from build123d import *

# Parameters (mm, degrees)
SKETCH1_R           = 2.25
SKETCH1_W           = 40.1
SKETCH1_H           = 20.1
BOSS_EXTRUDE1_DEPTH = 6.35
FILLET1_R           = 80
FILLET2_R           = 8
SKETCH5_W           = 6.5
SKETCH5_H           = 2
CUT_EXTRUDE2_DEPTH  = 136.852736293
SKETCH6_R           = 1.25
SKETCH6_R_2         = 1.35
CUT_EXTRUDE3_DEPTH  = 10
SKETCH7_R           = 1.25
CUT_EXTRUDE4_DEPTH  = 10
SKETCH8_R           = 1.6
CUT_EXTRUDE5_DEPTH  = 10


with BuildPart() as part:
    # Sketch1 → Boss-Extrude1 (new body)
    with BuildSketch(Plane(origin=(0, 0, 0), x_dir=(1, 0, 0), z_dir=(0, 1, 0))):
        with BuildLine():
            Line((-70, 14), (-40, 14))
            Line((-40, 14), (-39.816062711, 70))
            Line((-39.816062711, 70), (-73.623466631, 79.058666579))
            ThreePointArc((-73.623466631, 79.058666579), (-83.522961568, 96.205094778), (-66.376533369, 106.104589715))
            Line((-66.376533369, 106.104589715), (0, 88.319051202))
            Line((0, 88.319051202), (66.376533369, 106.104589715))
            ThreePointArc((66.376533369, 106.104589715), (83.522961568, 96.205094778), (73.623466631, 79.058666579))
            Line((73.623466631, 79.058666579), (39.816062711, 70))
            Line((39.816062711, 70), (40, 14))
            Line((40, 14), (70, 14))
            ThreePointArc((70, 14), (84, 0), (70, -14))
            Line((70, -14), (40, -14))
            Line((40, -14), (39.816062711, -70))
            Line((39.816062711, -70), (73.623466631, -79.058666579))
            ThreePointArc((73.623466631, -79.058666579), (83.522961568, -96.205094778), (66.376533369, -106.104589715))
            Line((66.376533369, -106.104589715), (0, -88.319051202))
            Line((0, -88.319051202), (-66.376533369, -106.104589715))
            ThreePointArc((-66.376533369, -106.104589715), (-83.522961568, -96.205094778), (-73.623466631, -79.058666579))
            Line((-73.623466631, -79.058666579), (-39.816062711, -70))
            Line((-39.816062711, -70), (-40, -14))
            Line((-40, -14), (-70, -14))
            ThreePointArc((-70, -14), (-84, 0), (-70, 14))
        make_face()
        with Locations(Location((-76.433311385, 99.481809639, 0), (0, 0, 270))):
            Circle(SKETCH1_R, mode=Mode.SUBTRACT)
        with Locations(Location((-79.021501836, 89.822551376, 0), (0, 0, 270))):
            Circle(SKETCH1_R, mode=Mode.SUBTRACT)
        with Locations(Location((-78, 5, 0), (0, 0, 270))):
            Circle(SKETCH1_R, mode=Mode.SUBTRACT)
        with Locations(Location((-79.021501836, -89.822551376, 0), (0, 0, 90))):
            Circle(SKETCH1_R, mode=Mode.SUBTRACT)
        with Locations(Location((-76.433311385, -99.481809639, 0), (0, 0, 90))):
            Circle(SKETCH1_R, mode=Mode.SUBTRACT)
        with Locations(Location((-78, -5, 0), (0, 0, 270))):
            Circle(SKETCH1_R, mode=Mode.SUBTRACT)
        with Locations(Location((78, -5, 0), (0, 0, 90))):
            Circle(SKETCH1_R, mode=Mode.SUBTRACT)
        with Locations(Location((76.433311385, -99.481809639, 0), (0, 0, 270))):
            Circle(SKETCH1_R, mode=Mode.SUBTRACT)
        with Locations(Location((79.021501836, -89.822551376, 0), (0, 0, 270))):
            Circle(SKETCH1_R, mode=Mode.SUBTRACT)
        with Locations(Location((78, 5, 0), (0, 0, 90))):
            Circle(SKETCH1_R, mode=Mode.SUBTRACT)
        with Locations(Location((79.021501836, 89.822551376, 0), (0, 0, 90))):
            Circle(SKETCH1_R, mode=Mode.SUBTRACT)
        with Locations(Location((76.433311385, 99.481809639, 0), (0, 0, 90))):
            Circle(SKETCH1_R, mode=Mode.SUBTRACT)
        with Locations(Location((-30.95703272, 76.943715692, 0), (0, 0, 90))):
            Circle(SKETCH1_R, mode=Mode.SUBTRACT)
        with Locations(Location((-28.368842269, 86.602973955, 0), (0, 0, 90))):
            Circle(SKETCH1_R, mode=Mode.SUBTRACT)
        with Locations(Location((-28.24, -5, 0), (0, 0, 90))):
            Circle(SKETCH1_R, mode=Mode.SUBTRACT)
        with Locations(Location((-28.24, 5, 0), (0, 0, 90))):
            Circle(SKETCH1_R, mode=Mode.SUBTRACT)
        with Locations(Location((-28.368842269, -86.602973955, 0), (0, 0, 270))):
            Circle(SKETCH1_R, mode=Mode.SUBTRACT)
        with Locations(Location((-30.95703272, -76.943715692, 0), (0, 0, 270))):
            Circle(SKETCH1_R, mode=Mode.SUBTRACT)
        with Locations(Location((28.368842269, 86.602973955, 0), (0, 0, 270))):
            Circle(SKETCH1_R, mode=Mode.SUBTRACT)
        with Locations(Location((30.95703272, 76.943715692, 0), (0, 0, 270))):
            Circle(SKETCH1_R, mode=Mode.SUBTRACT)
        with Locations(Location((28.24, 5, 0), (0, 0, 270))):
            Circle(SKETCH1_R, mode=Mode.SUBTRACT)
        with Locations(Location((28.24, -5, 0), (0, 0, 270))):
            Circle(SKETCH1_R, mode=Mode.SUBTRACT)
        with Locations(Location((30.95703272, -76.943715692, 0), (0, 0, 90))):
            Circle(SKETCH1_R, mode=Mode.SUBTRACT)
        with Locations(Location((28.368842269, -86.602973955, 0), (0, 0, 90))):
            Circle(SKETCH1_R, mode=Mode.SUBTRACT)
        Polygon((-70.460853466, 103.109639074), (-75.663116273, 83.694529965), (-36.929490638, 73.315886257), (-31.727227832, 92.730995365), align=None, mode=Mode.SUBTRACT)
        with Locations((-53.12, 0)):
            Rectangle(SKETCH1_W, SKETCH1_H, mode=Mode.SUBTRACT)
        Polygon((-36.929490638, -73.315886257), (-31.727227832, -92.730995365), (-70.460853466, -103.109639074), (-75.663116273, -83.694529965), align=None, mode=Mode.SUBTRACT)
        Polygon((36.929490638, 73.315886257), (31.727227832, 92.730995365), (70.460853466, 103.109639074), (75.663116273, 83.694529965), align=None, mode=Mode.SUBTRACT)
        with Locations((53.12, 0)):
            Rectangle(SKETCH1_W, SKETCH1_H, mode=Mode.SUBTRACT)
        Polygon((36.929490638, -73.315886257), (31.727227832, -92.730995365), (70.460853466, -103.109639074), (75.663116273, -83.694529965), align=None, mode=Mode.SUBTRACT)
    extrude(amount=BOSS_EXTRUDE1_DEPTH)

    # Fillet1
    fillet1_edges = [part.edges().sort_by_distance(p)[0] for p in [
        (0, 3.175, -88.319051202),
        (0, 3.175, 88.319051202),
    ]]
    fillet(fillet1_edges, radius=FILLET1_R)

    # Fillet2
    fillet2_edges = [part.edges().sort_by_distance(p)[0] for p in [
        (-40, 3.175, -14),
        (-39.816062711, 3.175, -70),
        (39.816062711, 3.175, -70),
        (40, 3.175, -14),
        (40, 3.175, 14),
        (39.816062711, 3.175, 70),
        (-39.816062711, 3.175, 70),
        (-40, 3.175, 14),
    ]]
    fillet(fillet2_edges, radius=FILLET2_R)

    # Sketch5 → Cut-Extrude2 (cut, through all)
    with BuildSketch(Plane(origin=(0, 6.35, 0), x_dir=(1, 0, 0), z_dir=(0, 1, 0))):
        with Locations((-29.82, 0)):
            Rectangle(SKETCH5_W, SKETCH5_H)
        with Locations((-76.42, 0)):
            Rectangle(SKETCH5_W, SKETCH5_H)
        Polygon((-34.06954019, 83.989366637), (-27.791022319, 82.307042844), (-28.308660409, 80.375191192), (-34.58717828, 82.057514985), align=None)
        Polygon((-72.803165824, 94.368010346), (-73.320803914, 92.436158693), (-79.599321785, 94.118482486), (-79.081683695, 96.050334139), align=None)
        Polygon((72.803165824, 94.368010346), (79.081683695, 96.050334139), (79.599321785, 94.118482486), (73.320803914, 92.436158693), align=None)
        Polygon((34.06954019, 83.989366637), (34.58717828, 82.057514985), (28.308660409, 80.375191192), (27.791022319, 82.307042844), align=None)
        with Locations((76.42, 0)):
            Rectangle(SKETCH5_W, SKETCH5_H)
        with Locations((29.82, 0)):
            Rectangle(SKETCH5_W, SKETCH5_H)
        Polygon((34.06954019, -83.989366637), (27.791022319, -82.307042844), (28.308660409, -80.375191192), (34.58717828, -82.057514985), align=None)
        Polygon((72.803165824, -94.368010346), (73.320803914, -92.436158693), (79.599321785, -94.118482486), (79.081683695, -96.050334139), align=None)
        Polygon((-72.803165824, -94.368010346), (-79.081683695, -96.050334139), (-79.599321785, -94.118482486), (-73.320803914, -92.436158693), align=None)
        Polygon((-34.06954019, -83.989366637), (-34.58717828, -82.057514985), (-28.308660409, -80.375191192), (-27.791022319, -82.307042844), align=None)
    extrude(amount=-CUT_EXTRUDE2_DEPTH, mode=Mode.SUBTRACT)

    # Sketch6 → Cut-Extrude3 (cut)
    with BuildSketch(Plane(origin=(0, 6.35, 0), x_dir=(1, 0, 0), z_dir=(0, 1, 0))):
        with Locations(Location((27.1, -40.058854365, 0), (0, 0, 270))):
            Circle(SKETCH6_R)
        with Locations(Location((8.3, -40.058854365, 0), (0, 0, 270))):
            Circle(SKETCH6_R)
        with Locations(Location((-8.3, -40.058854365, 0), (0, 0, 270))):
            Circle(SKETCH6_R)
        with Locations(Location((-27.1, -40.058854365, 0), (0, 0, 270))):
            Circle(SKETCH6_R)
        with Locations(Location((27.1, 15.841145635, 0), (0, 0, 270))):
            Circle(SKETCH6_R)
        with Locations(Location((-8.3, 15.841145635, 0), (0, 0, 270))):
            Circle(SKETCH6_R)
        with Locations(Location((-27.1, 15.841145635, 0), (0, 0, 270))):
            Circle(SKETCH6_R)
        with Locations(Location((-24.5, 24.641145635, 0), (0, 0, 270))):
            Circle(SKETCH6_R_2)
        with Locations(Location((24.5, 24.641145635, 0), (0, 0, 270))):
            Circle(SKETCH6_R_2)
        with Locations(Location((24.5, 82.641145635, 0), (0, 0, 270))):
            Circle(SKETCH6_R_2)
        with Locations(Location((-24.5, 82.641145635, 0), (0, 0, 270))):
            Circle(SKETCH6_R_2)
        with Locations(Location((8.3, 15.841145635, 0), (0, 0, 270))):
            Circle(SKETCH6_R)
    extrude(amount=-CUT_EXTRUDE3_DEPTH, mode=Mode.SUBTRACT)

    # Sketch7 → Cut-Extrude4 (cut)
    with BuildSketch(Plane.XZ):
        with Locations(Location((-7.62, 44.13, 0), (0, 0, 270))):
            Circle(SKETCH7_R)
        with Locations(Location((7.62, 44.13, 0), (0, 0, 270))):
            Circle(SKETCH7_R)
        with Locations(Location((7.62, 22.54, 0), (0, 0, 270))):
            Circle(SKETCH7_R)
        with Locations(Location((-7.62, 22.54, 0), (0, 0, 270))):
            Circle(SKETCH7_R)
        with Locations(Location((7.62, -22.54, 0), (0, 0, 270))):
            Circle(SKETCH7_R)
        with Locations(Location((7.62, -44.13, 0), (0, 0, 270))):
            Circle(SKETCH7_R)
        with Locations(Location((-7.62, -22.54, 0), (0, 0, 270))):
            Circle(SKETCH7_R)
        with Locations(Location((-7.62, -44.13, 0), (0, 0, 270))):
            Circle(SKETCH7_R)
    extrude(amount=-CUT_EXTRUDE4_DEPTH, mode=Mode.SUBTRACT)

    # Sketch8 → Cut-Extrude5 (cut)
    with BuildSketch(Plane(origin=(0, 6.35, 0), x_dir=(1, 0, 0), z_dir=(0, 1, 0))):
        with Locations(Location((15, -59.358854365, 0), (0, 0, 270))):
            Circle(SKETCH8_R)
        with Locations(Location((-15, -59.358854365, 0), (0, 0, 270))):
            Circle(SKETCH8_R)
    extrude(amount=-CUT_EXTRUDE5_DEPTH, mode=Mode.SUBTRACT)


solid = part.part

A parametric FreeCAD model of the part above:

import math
import FreeCAD as App
import Part
import Sketcher
Q = App.Units.Quantity


def edges_at(feature, points):
    """Names of the edges that pass closest to the given points."""
    edges = feature.Shape.Edges
    near = lambda p: min(range(len(edges)), key=lambda i: edges[i].distToShape(Part.Vertex(*p))[0])
    return sorted({f"Edge{near(p) + 1}" for p in points})

doc = App.newDocument("Part")
body = doc.addObject("PartDesign::Body", "Body")

# Sketch on XZ plane
sketch1 = body.newObject("Sketcher::SketchObject", "Sketch")
sketch1.AttachmentSupport = (doc.getObject("XZ_Plane"), [""])
sketch1.MapMode = "FlatFace"
sketch1.addGeometry([
    Part.LineSegment(App.Vector(-40, -14, 0), App.Vector(-70, -14, 0)),  # 0
    Part.ArcOfCircle(Part.Circle(App.Vector(-70, 0, 0), App.Vector(0, 0, 1), 14), math.radians(90), math.radians(270)),  # 1
    Part.LineSegment(App.Vector(-70, 14, 0), App.Vector(-40, 14, 0)),  # 2
    Part.LineSegment(App.Vector(-40, 14, 0), App.Vector(-39.8, 70, 0)),  # 3
    Part.LineSegment(App.Vector(-39.8, 70, 0), App.Vector(-73.6, 79.1, 0)),  # 4
    Part.ArcOfCircle(Part.Circle(App.Vector(-70, 92.6, 0), App.Vector(0, 0, 1), 14), math.radians(75), math.radians(255)),  # 5
    Part.LineSegment(App.Vector(-66.4, 106.1, 0), App.Vector(0, 88.3, 0)),  # 6
    Part.LineSegment(App.Vector(0, 88.3, 0), App.Vector(66.4, 106.1, 0)),  # 7
    Part.ArcOfCircle(Part.Circle(App.Vector(70, 92.6, 0), App.Vector(0, 0, 1), 14), math.radians(-75), math.radians(105)),  # 8
    Part.LineSegment(App.Vector(73.6, 79.1, 0), App.Vector(39.8, 70, 0)),  # 9
    Part.LineSegment(App.Vector(39.8, 70, 0), App.Vector(40, 14, 0)),  # 10
    Part.LineSegment(App.Vector(40, 14, 0), App.Vector(70, 14, 0)),  # 11
    Part.ArcOfCircle(Part.Circle(App.Vector(70, 0, 0), App.Vector(0, 0, 1), 14), math.radians(-90), math.radians(90)),  # 12
    Part.LineSegment(App.Vector(70, -14, 0), App.Vector(40, -14, 0)),  # 13
    Part.LineSegment(App.Vector(40, -14, 0), App.Vector(39.8, -70, 0)),  # 14
    Part.LineSegment(App.Vector(39.8, -70, 0), App.Vector(73.6, -79.1, 0)),  # 15
    Part.ArcOfCircle(Part.Circle(App.Vector(70, -92.6, 0), App.Vector(0, 0, 1), 14), math.radians(-105), math.radians(75)),  # 16
    Part.LineSegment(App.Vector(66.4, -106.1, 0), App.Vector(0, -88.3, 0)),  # 17
    Part.LineSegment(App.Vector(0, -88.3, 0), App.Vector(-66.4, -106.1, 0)),  # 18
    Part.ArcOfCircle(Part.Circle(App.Vector(-70, -92.6, 0), App.Vector(0, 0, 1), 14), math.radians(105), math.radians(285)),  # 19
    Part.LineSegment(App.Vector(-73.6, -79.1, 0), App.Vector(-39.8, -70, 0)),  # 20
    Part.LineSegment(App.Vector(-39.8, -70, 0), App.Vector(-40, -14, 0)),  # 21
    Part.Circle(App.Vector(76.4, 99.5, 0), App.Vector(0, 0, 1), 2.2),  # 22
    Part.Circle(App.Vector(79, 89.8, 0), App.Vector(0, 0, 1), 2.2),  # 23
    Part.LineSegment(App.Vector(36.9, 73.3, 0), App.Vector(75.7, 83.7, 0)),  # 24
    Part.LineSegment(App.Vector(75.7, 83.7, 0), App.Vector(70.5, 103.1, 0)),  # 25
    Part.LineSegment(App.Vector(70.5, 103.1, 0), App.Vector(31.7, 92.7, 0)),  # 26
    Part.LineSegment(App.Vector(31.7, 92.7, 0), App.Vector(36.9, 73.3, 0)),  # 27
    Part.Circle(App.Vector(28.4, 86.6, 0), App.Vector(0, 0, 1), 2.2),  # 28
    Part.Circle(App.Vector(31, 76.9, 0), App.Vector(0, 0, 1), 2.2),  # 29
    Part.Circle(App.Vector(78, 5, 0), App.Vector(0, 0, 1), 2.2),  # 30
    Part.Circle(App.Vector(28.2, 5, 0), App.Vector(0, 0, 1), 2.2),  # 31
    Part.Circle(App.Vector(-28.4, 86.6, 0), App.Vector(0, 0, 1), 2.2),  # 32
    Part.Circle(App.Vector(-31, 76.9, 0), App.Vector(0, 0, 1), 2.2),  # 33
    Part.LineSegment(App.Vector(-36.9, 73.3, 0), App.Vector(-31.7, 92.7, 0)),  # 34
    Part.LineSegment(App.Vector(-31.7, 92.7, 0), App.Vector(-70.5, 103.1, 0)),  # 35
    Part.LineSegment(App.Vector(-70.5, 103.1, 0), App.Vector(-75.7, 83.7, 0)),  # 36
    Part.LineSegment(App.Vector(-75.7, 83.7, 0), App.Vector(-36.9, 73.3, 0)),  # 37
    Part.Circle(App.Vector(-76.4, 99.5, 0), App.Vector(0, 0, 1), 2.2),  # 38
    Part.Circle(App.Vector(-79, 89.8, 0), App.Vector(0, 0, 1), 2.2),  # 39
    Part.Circle(App.Vector(-28.2, 5, 0), App.Vector(0, 0, 1), 2.2),  # 40
    Part.Circle(App.Vector(-78, 5, 0), App.Vector(0, 0, 1), 2.2),  # 41
    Part.Circle(App.Vector(78, -5, 0), App.Vector(0, 0, 1), 2.2),  # 42
    Part.LineSegment(App.Vector(33.1, 10.1, 0), App.Vector(33.1, -10.1, 0)),  # 43
    Part.LineSegment(App.Vector(33.1, -10.1, 0), App.Vector(73.2, -10.1, 0)),  # 44
    Part.LineSegment(App.Vector(73.2, -10.1, 0), App.Vector(73.2, 10.1, 0)),  # 45
    Part.LineSegment(App.Vector(73.2, 10.1, 0), App.Vector(33.1, 10.1, 0)),  # 46
    Part.Circle(App.Vector(28.2, -5, 0), App.Vector(0, 0, 1), 2.2),  # 47
    Part.Circle(App.Vector(79, -89.8, 0), App.Vector(0, 0, 1), 2.2),  # 48
    Part.Circle(App.Vector(76.4, -99.5, 0), App.Vector(0, 0, 1), 2.2),  # 49
    Part.LineSegment(App.Vector(36.9, -73.3, 0), App.Vector(31.7, -92.7, 0)),  # 50
    Part.LineSegment(App.Vector(31.7, -92.7, 0), App.Vector(70.5, -103.1, 0)),  # 51
    Part.LineSegment(App.Vector(70.5, -103.1, 0), App.Vector(75.7, -83.7, 0)),  # 52
    Part.LineSegment(App.Vector(75.7, -83.7, 0), App.Vector(36.9, -73.3, 0)),  # 53
    Part.Circle(App.Vector(31, -76.9, 0), App.Vector(0, 0, 1), 2.2),  # 54
    Part.Circle(App.Vector(28.4, -86.6, 0), App.Vector(0, 0, 1), 2.2),  # 55
    Part.Circle(App.Vector(-28.2, -5, 0), App.Vector(0, 0, 1), 2.2),  # 56
    Part.LineSegment(App.Vector(-73.2, 10.1, 0), App.Vector(-73.2, -10.1, 0)),  # 57
    Part.LineSegment(App.Vector(-73.2, -10.1, 0), App.Vector(-33.1, -10.1, 0)),  # 58
    Part.LineSegment(App.Vector(-33.1, -10.1, 0), App.Vector(-33.1, 10.1, 0)),  # 59
    Part.LineSegment(App.Vector(-33.1, 10.1, 0), App.Vector(-73.2, 10.1, 0)),  # 60
    Part.Circle(App.Vector(-78, -5, 0), App.Vector(0, 0, 1), 2.2),  # 61
    Part.Circle(App.Vector(-31, -76.9, 0), App.Vector(0, 0, 1), 2.2),  # 62
    Part.Circle(App.Vector(-28.4, -86.6, 0), App.Vector(0, 0, 1), 2.2),  # 63
    Part.LineSegment(App.Vector(-70.5, -103.1, 0), App.Vector(-31.7, -92.7, 0)),  # 64
    Part.LineSegment(App.Vector(-31.7, -92.7, 0), App.Vector(-36.9, -73.3, 0)),  # 65
    Part.LineSegment(App.Vector(-36.9, -73.3, 0), App.Vector(-75.7, -83.7, 0)),  # 66
    Part.LineSegment(App.Vector(-75.7, -83.7, 0), App.Vector(-70.5, -103.1, 0)),  # 67
    Part.Circle(App.Vector(-79, -89.8, 0), App.Vector(0, 0, 1), 2.2),  # 68
    Part.Circle(App.Vector(-76.4, -99.5, 0), App.Vector(0, 0, 1), 2.2),  # 69
], False)
sketch1.addConstraint([
    Sketcher.Constraint("Tangent", 0, 2, 1, 2),
    Sketcher.Constraint("Tangent", 1, 1, 2, 1),
    Sketcher.Constraint("Coincident", 2, 2, 3, 1),
    Sketcher.Constraint("Coincident", 3, 2, 4, 1),
    Sketcher.Constraint("Tangent", 4, 2, 5, 2),
    Sketcher.Constraint("Tangent", 5, 1, 6, 1),
    Sketcher.Constraint("Coincident", 6, 2, 7, 1),
    Sketcher.Constraint("Tangent", 7, 2, 8, 2),
    Sketcher.Constraint("Tangent", 8, 1, 9, 1),
    Sketcher.Constraint("Coincident", 9, 2, 10, 1),
    Sketcher.Constraint("Coincident", 10, 2, 11, 1),
    Sketcher.Constraint("Tangent", 11, 2, 12, 2),
    Sketcher.Constraint("Tangent", 12, 1, 13, 1),
    Sketcher.Constraint("Coincident", 13, 2, 14, 1),
    Sketcher.Constraint("Coincident", 14, 2, 15, 1),
    Sketcher.Constraint("Tangent", 15, 2, 16, 2),
    Sketcher.Constraint("Tangent", 16, 1, 17, 1),
    Sketcher.Constraint("Coincident", 17, 2, 18, 1),
    Sketcher.Constraint("Tangent", 18, 2, 19, 2),
    Sketcher.Constraint("Tangent", 19, 1, 20, 1),
    Sketcher.Constraint("Coincident", 20, 2, 21, 1),
    Sketcher.Constraint("Coincident", 21, 2, 0, 1),
    Sketcher.Constraint("Coincident", 24, 2, 25, 1),
    Sketcher.Constraint("Coincident", 25, 2, 26, 1),
    Sketcher.Constraint("Coincident", 26, 2, 27, 1),
    Sketcher.Constraint("Coincident", 27, 2, 24, 1),
    Sketcher.Constraint("Coincident", 34, 2, 35, 1),
    Sketcher.Constraint("Coincident", 35, 2, 36, 1),
    Sketcher.Constraint("Coincident", 36, 2, 37, 1),
    Sketcher.Constraint("Coincident", 37, 2, 34, 1),
    Sketcher.Constraint("Coincident", 43, 2, 44, 1),
    Sketcher.Constraint("Coincident", 44, 2, 45, 1),
    Sketcher.Constraint("Coincident", 45, 2, 46, 1),
    Sketcher.Constraint("Coincident", 46, 2, 43, 1),
    Sketcher.Constraint("Coincident", 50, 2, 51, 1),
    Sketcher.Constraint("Coincident", 51, 2, 52, 1),
    Sketcher.Constraint("Coincident", 52, 2, 53, 1),
    Sketcher.Constraint("Coincident", 53, 2, 50, 1),
    Sketcher.Constraint("Coincident", 57, 2, 58, 1),
    Sketcher.Constraint("Coincident", 58, 2, 59, 1),
    Sketcher.Constraint("Coincident", 59, 2, 60, 1),
    Sketcher.Constraint("Coincident", 60, 2, 57, 1),
    Sketcher.Constraint("Coincident", 64, 2, 65, 1),
    Sketcher.Constraint("Coincident", 65, 2, 66, 1),
    Sketcher.Constraint("Coincident", 66, 2, 67, 1),
    Sketcher.Constraint("Coincident", 67, 2, 64, 1),
    Sketcher.Constraint("Horizontal", 0),
    Sketcher.Constraint("Horizontal", 2),
    Sketcher.Constraint("Horizontal", 11),
    Sketcher.Constraint("Horizontal", 13),
    Sketcher.Constraint("Vertical", 43),
    Sketcher.Constraint("Horizontal", 44),
    Sketcher.Constraint("Vertical", 45),
    Sketcher.Constraint("Horizontal", 46),
    Sketcher.Constraint("Vertical", 57),
    Sketcher.Constraint("Horizontal", 58),
    Sketcher.Constraint("Vertical", 59),
    Sketcher.Constraint("Horizontal", 60),
    Sketcher.Constraint("Equal", 1, 5),
    Sketcher.Constraint("Equal", 5, 8),
    Sketcher.Constraint("Equal", 8, 12),
    Sketcher.Constraint("Equal", 12, 16),
    Sketcher.Constraint("Equal", 16, 19),
    Sketcher.Constraint("Equal", 22, 23),
    Sketcher.Constraint("Equal", 23, 28),
    Sketcher.Constraint("Equal", 28, 29),
    Sketcher.Constraint("Equal", 29, 30),
    Sketcher.Constraint("Equal", 30, 31),
    Sketcher.Constraint("Equal", 31, 32),
    Sketcher.Constraint("Equal", 32, 33),
    Sketcher.Constraint("Equal", 33, 38),
    Sketcher.Constraint("Equal", 38, 39),
    Sketcher.Constraint("Equal", 39, 40),
    Sketcher.Constraint("Equal", 40, 41),
    Sketcher.Constraint("Equal", 41, 42),
    Sketcher.Constraint("Equal", 42, 47),
    Sketcher.Constraint("Equal", 47, 48),
    Sketcher.Constraint("Equal", 48, 49),
    Sketcher.Constraint("Equal", 49, 54),
    Sketcher.Constraint("Equal", 54, 55),
    Sketcher.Constraint("Equal", 55, 56),
    Sketcher.Constraint("Equal", 56, 61),
    Sketcher.Constraint("Equal", 61, 62),
    Sketcher.Constraint("Equal", 62, 63),
    Sketcher.Constraint("Equal", 63, 68),
    Sketcher.Constraint("Equal", 68, 69),
    Sketcher.Constraint("Symmetric", 1, 3, 12, 3, -1, 1),
    Sketcher.Constraint("Symmetric", 5, 3, 16, 3, -1, 1),
    Sketcher.Constraint("Symmetric", 8, 3, 19, 3, -1, 1),
    Sketcher.Constraint("Symmetric", 41, 3, 42, 3, -1, 1),
    Sketcher.Constraint("Symmetric", 40, 3, 47, 3, -1, 1),
    Sketcher.Constraint("Symmetric", 39, 3, 48, 3, -1, 1),
    Sketcher.Constraint("Symmetric", 38, 3, 49, 3, -1, 1),
    Sketcher.Constraint("Symmetric", 33, 3, 54, 3, -1, 1),
    Sketcher.Constraint("Symmetric", 32, 3, 55, 3, -1, 1),
    Sketcher.Constraint("Symmetric", 31, 3, 56, 3, -1, 1),
    Sketcher.Constraint("Symmetric", 30, 3, 61, 3, -1, 1),
    Sketcher.Constraint("Symmetric", 29, 3, 62, 3, -1, 1),
    Sketcher.Constraint("Symmetric", 28, 3, 63, 3, -1, 1),
    Sketcher.Constraint("Symmetric", 23, 3, 68, 3, -1, 1),
    Sketcher.Constraint("Symmetric", 22, 3, 69, 3, -1, 1),
    Sketcher.Constraint("Symmetric", 3, 2, 14, 2, -1, 1),
    Sketcher.Constraint("Symmetric", 6, 2, 17, 2, -1, 1),
    Sketcher.Constraint("Symmetric", 9, 2, 20, 2, -1, 1),
    Sketcher.Constraint("Symmetric", 34, 2, 50, 2, -1, 1),
    Sketcher.Constraint("Symmetric", 35, 2, 51, 2, -1, 1),
    Sketcher.Constraint("Symmetric", 36, 2, 52, 2, -1, 1),
    Sketcher.Constraint("Symmetric", 37, 2, 53, 2, -1, 1),
    Sketcher.Constraint("Symmetric", 45, 2, 57, 2, -1, 1),
    Sketcher.Constraint("Symmetric", 43, 2, 59, 2, -1, 1),
    Sketcher.Constraint("Symmetric", 26, 2, 64, 2, -1, 1),
    Sketcher.Constraint("Symmetric", 27, 2, 65, 2, -1, 1),
    Sketcher.Constraint("Symmetric", 24, 2, 66, 2, -1, 1),
    Sketcher.Constraint("Symmetric", 25, 2, 67, 2, -1, 1),
    Sketcher.Constraint("Symmetric", 5, 3, 8, 3, -2),
    Sketcher.Constraint("Symmetric", 28, 3, 32, 3, -2),
    Sketcher.Constraint("Symmetric", 29, 3, 33, 3, -2),
    Sketcher.Constraint("Symmetric", 22, 3, 38, 3, -2),
    Sketcher.Constraint("Symmetric", 23, 3, 39, 3, -2),
    Sketcher.Constraint("Symmetric", 31, 3, 40, 3, -2),
    Sketcher.Constraint("Symmetric", 30, 3, 41, 3, -2),
    Sketcher.Constraint("Symmetric", 3, 2, 9, 2, -2),
    Sketcher.Constraint("Symmetric", 2, 2, 10, 2, -2),
    Sketcher.Constraint("Symmetric", 26, 2, 34, 2, -2),
    Sketcher.Constraint("Symmetric", 25, 2, 35, 2, -2),
    Sketcher.Constraint("Symmetric", 24, 2, 36, 2, -2),
    Sketcher.Constraint("Symmetric", 27, 2, 37, 2, -2),
    Sketcher.Constraint("PointOnObject", 6, 2, -2),
    Sketcher.Constraint("Parallel", 4, 6),
    Sketcher.Constraint("Parallel", 3, 14),
    Sketcher.Constraint("Parallel", 10, 21),
    Sketcher.Constraint("Parallel", 20, 24),
    Sketcher.Constraint("Perpendicular", 24, 25),
    Sketcher.Constraint("Perpendicular", 25, 26),
    Sketcher.Constraint("Perpendicular", 26, 27),
    Sketcher.Constraint("Horizontal", 30, 3, 31, 3),
    Sketcher.Constraint("Horizontal", 44, 2, 57, 2),
    Sketcher.Constraint("Vertical", 1, 3, 5, 3),
    Sketcher.Constraint("Radius", 1, 14.0),
    Sketcher.Constraint("Diameter", 22, 4.5),
    Sketcher.Constraint("DistanceX", 0, 2, 0, 1, 30.0),
    Sketcher.Constraint("Angle", 4, Q("165 deg")),
    Sketcher.Constraint("Distance", 4, 35.0),
    Sketcher.Constraint("DistanceX", 44, 1, 44, 2, 40.1),
    Sketcher.Constraint("DistanceY", 43, 2, 43, 1, 20.1),
    Sketcher.Constraint("DistanceX", 1, 3, -1, 1, 70.0),
    Sketcher.Constraint("DistanceX", -1, 1, 30, 3, 78.0),
    Sketcher.Constraint("DistanceY", -1, 1, 30, 3, 5.0),
    Sketcher.Constraint("DistanceY", -1, 1, 3, 2, 70.0),
    Sketcher.Constraint("Distance", 24, 40.1),
    Sketcher.Constraint("Distance", 25, 20.1),
    Sketcher.Constraint("DistanceX", -1, 1, 31, 3, 28.24),
    Sketcher.Constraint("DistanceX", -1, 1, 43, 2, 33.07),
    Sketcher.Constraint("DistanceX", -1, 1, 23, 3, 79.021502),
    Sketcher.Constraint("DistanceX", -1, 1, 22, 3, 76.433311),
    Sketcher.Constraint("DistanceY", -1, 1, 22, 3, 99.48181),
    Sketcher.Constraint("DistanceY", -1, 1, 23, 3, 89.822551),
    Sketcher.Constraint("DistanceY", -1, 1, 24, 2, 83.69453),
    Sketcher.Constraint("DistanceX", -1, 1, 27, 2, 36.929491),
    Sketcher.Constraint("DistanceX", -1, 1, 28, 3, 28.368842),
    Sketcher.Constraint("DistanceY", -1, 1, 28, 3, 86.602974),
    Sketcher.Constraint("DistanceX", -1, 1, 29, 3, 30.957033),
    Sketcher.Constraint("DistanceY", -1, 1, 29, 3, 76.943716),
])
pad1 = body.newObject("PartDesign::Pad", "Pad")
pad1.Profile = sketch1
pad1.Length = 6.35
pad1.Reversed = True
doc.recompute()

fillet = body.newObject("PartDesign::Fillet", "Fillet")
fillet.Base = (pad1, edges_at(pad1, [(0, 3.175, -88.319), (0, 3.175, 88.319)]))
fillet.Radius = 80
doc.recompute()

fillet2 = body.newObject("PartDesign::Fillet", "Fillet001")
fillet2.Base = (fillet, edges_at(fillet, [
    (-40, 3.175, -14),
    (-39.816, 3.175, -70),
    (39.816, 3.175, -70),
    (40, 3.175, -14),
    (40, 3.175, 14),
    (39.816, 3.175, 70),
    (-39.816, 3.175, 70),
    (-40, 3.175, 14),
]))
fillet2.Radius = 8

# Sketch on XZ plane
sketch2 = body.newObject("Sketcher::SketchObject", "Sketch001")
sketch2.AttachmentSupport = (doc.getObject("XZ_Plane"), [""])
sketch2.MapMode = "FlatFace"
sketch2.AttachmentOffset = App.Placement(App.Vector(0, 0, -6.35), App.Rotation())
sketch2.addGeometry([
    Part.LineSegment(App.Vector(-33.1, -1, 0), App.Vector(-33.1, 1, 0)),  # 0
    Part.LineSegment(App.Vector(-33.1, 1, 0), App.Vector(-26.6, 1, 0)),  # 1
    Part.LineSegment(App.Vector(-26.6, 1, 0), App.Vector(-26.6, -1, 0)),  # 2
    Part.LineSegment(App.Vector(-26.6, -1, 0), App.Vector(-33.1, -1, 0)),  # 3
    Part.LineSegment(App.Vector(-79.7, -1, 0), App.Vector(-79.7, 1, 0)),  # 4
    Part.LineSegment(App.Vector(-79.7, 1, 0), App.Vector(-73.2, 1, 0)),  # 5
    Part.LineSegment(App.Vector(-73.2, 1, 0), App.Vector(-73.2, -1, 0)),  # 6
    Part.LineSegment(App.Vector(-73.2, -1, 0), App.Vector(-79.7, -1, 0)),  # 7
    Part.LineSegment(App.Vector(-27.8, -82.3, 0), App.Vector(-34.1, -84, 0)),  # 8
    Part.LineSegment(App.Vector(-34.1, -84, 0), App.Vector(-34.6, -82.1, 0)),  # 9
    Part.LineSegment(App.Vector(-34.6, -82.1, 0), App.Vector(-28.3, -80.4, 0)),  # 10
    Part.LineSegment(App.Vector(-28.3, -80.4, 0), App.Vector(-27.8, -82.3, 0)),  # 11
    Part.LineSegment(App.Vector(-73.3, -92.4, 0), App.Vector(-72.8, -94.4, 0)),  # 12
    Part.LineSegment(App.Vector(-72.8, -94.4, 0), App.Vector(-79.1, -96.1, 0)),  # 13
    Part.LineSegment(App.Vector(-79.1, -96.1, 0), App.Vector(-79.6, -94.1, 0)),  # 14
    Part.LineSegment(App.Vector(-79.6, -94.1, 0), App.Vector(-73.3, -92.4, 0)),  # 15
    Part.LineSegment(App.Vector(79.1, -96.1, 0), App.Vector(72.8, -94.4, 0)),  # 16
    Part.LineSegment(App.Vector(72.8, -94.4, 0), App.Vector(73.3, -92.4, 0)),  # 17
    Part.LineSegment(App.Vector(73.3, -92.4, 0), App.Vector(79.6, -94.1, 0)),  # 18
    Part.LineSegment(App.Vector(79.6, -94.1, 0), App.Vector(79.1, -96.1, 0)),  # 19
    Part.LineSegment(App.Vector(34.6, -82.1, 0), App.Vector(34.1, -84, 0)),  # 20
    Part.LineSegment(App.Vector(34.1, -84, 0), App.Vector(27.8, -82.3, 0)),  # 21
    Part.LineSegment(App.Vector(27.8, -82.3, 0), App.Vector(28.3, -80.4, 0)),  # 22
    Part.LineSegment(App.Vector(28.3, -80.4, 0), App.Vector(34.6, -82.1, 0)),  # 23
    Part.LineSegment(App.Vector(73.2, -1, 0), App.Vector(73.2, 1, 0)),  # 24
    Part.LineSegment(App.Vector(73.2, 1, 0), App.Vector(79.7, 1, 0)),  # 25
    Part.LineSegment(App.Vector(79.7, 1, 0), App.Vector(79.7, -1, 0)),  # 26
    Part.LineSegment(App.Vector(79.7, -1, 0), App.Vector(73.2, -1, 0)),  # 27
    Part.LineSegment(App.Vector(26.6, -1, 0), App.Vector(26.6, 1, 0)),  # 28
    Part.LineSegment(App.Vector(26.6, 1, 0), App.Vector(33.1, 1, 0)),  # 29
    Part.LineSegment(App.Vector(33.1, 1, 0), App.Vector(33.1, -1, 0)),  # 30
    Part.LineSegment(App.Vector(33.1, -1, 0), App.Vector(26.6, -1, 0)),  # 31
    Part.LineSegment(App.Vector(27.8, 82.3, 0), App.Vector(34.1, 84, 0)),  # 32
    Part.LineSegment(App.Vector(34.1, 84, 0), App.Vector(34.6, 82.1, 0)),  # 33
    Part.LineSegment(App.Vector(34.6, 82.1, 0), App.Vector(28.3, 80.4, 0)),  # 34
    Part.LineSegment(App.Vector(28.3, 80.4, 0), App.Vector(27.8, 82.3, 0)),  # 35
    Part.LineSegment(App.Vector(73.3, 92.4, 0), App.Vector(72.8, 94.4, 0)),  # 36
    Part.LineSegment(App.Vector(72.8, 94.4, 0), App.Vector(79.1, 96.1, 0)),  # 37
    Part.LineSegment(App.Vector(79.1, 96.1, 0), App.Vector(79.6, 94.1, 0)),  # 38
    Part.LineSegment(App.Vector(79.6, 94.1, 0), App.Vector(73.3, 92.4, 0)),  # 39
    Part.LineSegment(App.Vector(-79.1, 96.1, 0), App.Vector(-72.8, 94.4, 0)),  # 40
    Part.LineSegment(App.Vector(-72.8, 94.4, 0), App.Vector(-73.3, 92.4, 0)),  # 41
    Part.LineSegment(App.Vector(-73.3, 92.4, 0), App.Vector(-79.6, 94.1, 0)),  # 42
    Part.LineSegment(App.Vector(-79.6, 94.1, 0), App.Vector(-79.1, 96.1, 0)),  # 43
    Part.LineSegment(App.Vector(-34.6, 82.1, 0), App.Vector(-34.1, 84, 0)),  # 44
    Part.LineSegment(App.Vector(-34.1, 84, 0), App.Vector(-27.8, 82.3, 0)),  # 45
    Part.LineSegment(App.Vector(-27.8, 82.3, 0), App.Vector(-28.3, 80.4, 0)),  # 46
    Part.LineSegment(App.Vector(-28.3, 80.4, 0), App.Vector(-34.6, 82.1, 0)),  # 47
], False)
sketch2.addConstraint([
    Sketcher.Constraint("Coincident", 0, 2, 1, 1),
    Sketcher.Constraint("Coincident", 1, 2, 2, 1),
    Sketcher.Constraint("Coincident", 2, 2, 3, 1),
    Sketcher.Constraint("Coincident", 3, 2, 0, 1),
    Sketcher.Constraint("Coincident", 4, 2, 5, 1),
    Sketcher.Constraint("Coincident", 5, 2, 6, 1),
    Sketcher.Constraint("Coincident", 6, 2, 7, 1),
    Sketcher.Constraint("Coincident", 7, 2, 4, 1),
    Sketcher.Constraint("Coincident", 8, 2, 9, 1),
    Sketcher.Constraint("Coincident", 9, 2, 10, 1),
    Sketcher.Constraint("Coincident", 10, 2, 11, 1),
    Sketcher.Constraint("Coincident", 11, 2, 8, 1),
    Sketcher.Constraint("Coincident", 12, 2, 13, 1),
    Sketcher.Constraint("Coincident", 13, 2, 14, 1),
    Sketcher.Constraint("Coincident", 14, 2, 15, 1),
    Sketcher.Constraint("Coincident", 15, 2, 12, 1),
    Sketcher.Constraint("Coincident", 16, 2, 17, 1),
    Sketcher.Constraint("Coincident", 17, 2, 18, 1),
    Sketcher.Constraint("Coincident", 18, 2, 19, 1),
    Sketcher.Constraint("Coincident", 19, 2, 16, 1),
    Sketcher.Constraint("Coincident", 20, 2, 21, 1),
    Sketcher.Constraint("Coincident", 21, 2, 22, 1),
    Sketcher.Constraint("Coincident", 22, 2, 23, 1),
    Sketcher.Constraint("Coincident", 23, 2, 20, 1),
    Sketcher.Constraint("Coincident", 24, 2, 25, 1),
    Sketcher.Constraint("Coincident", 25, 2, 26, 1),
    Sketcher.Constraint("Coincident", 26, 2, 27, 1),
    Sketcher.Constraint("Coincident", 27, 2, 24, 1),
    Sketcher.Constraint("Coincident", 28, 2, 29, 1),
    Sketcher.Constraint("Coincident", 29, 2, 30, 1),
    Sketcher.Constraint("Coincident", 30, 2, 31, 1),
    Sketcher.Constraint("Coincident", 31, 2, 28, 1),
    Sketcher.Constraint("Coincident", 32, 2, 33, 1),
    Sketcher.Constraint("Coincident", 33, 2, 34, 1),
    Sketcher.Constraint("Coincident", 34, 2, 35, 1),
    Sketcher.Constraint("Coincident", 35, 2, 32, 1),
    Sketcher.Constraint("Coincident", 36, 2, 37, 1),
    Sketcher.Constraint("Coincident", 37, 2, 38, 1),
    Sketcher.Constraint("Coincident", 38, 2, 39, 1),
    Sketcher.Constraint("Coincident", 39, 2, 36, 1),
    Sketcher.Constraint("Coincident", 40, 2, 41, 1),
    Sketcher.Constraint("Coincident", 41, 2, 42, 1),
    Sketcher.Constraint("Coincident", 42, 2, 43, 1),
    Sketcher.Constraint("Coincident", 43, 2, 40, 1),
    Sketcher.Constraint("Coincident", 44, 2, 45, 1),
    Sketcher.Constraint("Coincident", 45, 2, 46, 1),
    Sketcher.Constraint("Coincident", 46, 2, 47, 1),
    Sketcher.Constraint("Coincident", 47, 2, 44, 1),
    Sketcher.Constraint("Vertical", 0),
    Sketcher.Constraint("Horizontal", 1),
    Sketcher.Constraint("Vertical", 2),
    Sketcher.Constraint("Horizontal", 3),
    Sketcher.Constraint("Vertical", 4),
    Sketcher.Constraint("Horizontal", 5),
    Sketcher.Constraint("Vertical", 6),
    Sketcher.Constraint("Horizontal", 7),
    Sketcher.Constraint("Vertical", 24),
    Sketcher.Constraint("Horizontal", 25),
    Sketcher.Constraint("Vertical", 26),
    Sketcher.Constraint("Horizontal", 27),
    Sketcher.Constraint("Vertical", 28),
    Sketcher.Constraint("Horizontal", 29),
    Sketcher.Constraint("Vertical", 30),
    Sketcher.Constraint("Horizontal", 31),
    Sketcher.Constraint("Symmetric", 6, 2, 24, 2, -1, 1),
    Sketcher.Constraint("Symmetric", 4, 2, 26, 2, -1, 1),
    Sketcher.Constraint("Symmetric", 2, 2, 28, 2, -1, 1),
    Sketcher.Constraint("Symmetric", 0, 2, 30, 2, -1, 1),
    Sketcher.Constraint("Symmetric", 8, 2, 32, 2, -1, 1),
    Sketcher.Constraint("Symmetric", 9, 2, 33, 2, -1, 1),
    Sketcher.Constraint("Symmetric", 10, 2, 34, 2, -1, 1),
    Sketcher.Constraint("Symmetric", 11, 2, 35, 2, -1, 1),
    Sketcher.Constraint("Symmetric", 12, 2, 36, 2, -1, 1),
    Sketcher.Constraint("Symmetric", 13, 2, 37, 2, -1, 1),
    Sketcher.Constraint("Symmetric", 14, 2, 38, 2, -1, 1),
    Sketcher.Constraint("Symmetric", 15, 2, 39, 2, -1, 1),
    Sketcher.Constraint("Symmetric", 16, 2, 40, 2, -1, 1),
    Sketcher.Constraint("Symmetric", 17, 2, 41, 2, -1, 1),
    Sketcher.Constraint("Symmetric", 18, 2, 42, 2, -1, 1),
    Sketcher.Constraint("Symmetric", 19, 2, 43, 2, -1, 1),
    Sketcher.Constraint("Symmetric", 20, 2, 44, 2, -1, 1),
    Sketcher.Constraint("Symmetric", 21, 2, 45, 2, -1, 1),
    Sketcher.Constraint("Symmetric", 22, 2, 46, 2, -1, 1),
    Sketcher.Constraint("Symmetric", 23, 2, 47, 2, -1, 1),
    Sketcher.Constraint("Symmetric", 12, 2, 16, 2, -2),
    Sketcher.Constraint("Symmetric", 15, 2, 17, 2, -2),
    Sketcher.Constraint("Symmetric", 14, 2, 18, 2, -2),
    Sketcher.Constraint("Symmetric", 13, 2, 19, 2, -2),
    Sketcher.Constraint("Symmetric", 8, 2, 20, 2, -2),
    Sketcher.Constraint("Symmetric", 11, 2, 21, 2, -2),
    Sketcher.Constraint("Symmetric", 10, 2, 22, 2, -2),
    Sketcher.Constraint("Symmetric", 9, 2, 23, 2, -2),
    Sketcher.Constraint("Perpendicular", 8, 9),
    Sketcher.Constraint("Perpendicular", 9, 10),
    Sketcher.Constraint("Perpendicular", 10, 11),
    Sketcher.Constraint("Parallel", 11, 12),
    Sketcher.Constraint("Perpendicular", 12, 13),
    Sketcher.Constraint("Perpendicular", 13, 14),
    Sketcher.Constraint("Perpendicular", 14, 15),
    Sketcher.Constraint("Horizontal", 1, 2, 4, 2),
    Sketcher.Constraint("Horizontal", 3, 2, 6, 2),
    Sketcher.Constraint("Horizontal", 5, 2, 24, 2),
    Sketcher.Constraint("Equal", 3, 5),
    Sketcher.Constraint("Equal", 11, 12),
    Sketcher.Constraint("Equal", 10, 13),
    Sketcher.Constraint("DistanceY", 0, 1, 0, 2, 2.0),
    Sketcher.Constraint("Angle", 8, Q("-165 deg")),
    Sketcher.Constraint("Distance", 9, 2.0),
    Sketcher.Constraint("DistanceX", 1, 1, 1, 2, 6.5),
    Sketcher.Constraint("Distance", 8, 6.5),
    Sketcher.Constraint("DistanceX", 4, 2, 0, 2, 46.6),
    Sketcher.Constraint("DistanceX", 0, 2, -1, 1, 33.07),
    Sketcher.Constraint("DistanceX", 21, 2, 18, 2, 51.808299),
    Sketcher.Constraint("DistanceX", 8, 2, -1, 1, 34.06954),
    Sketcher.Constraint("DistanceY", 10, 2, -1, 1, 80.375191),
    Sketcher.Constraint("DistanceY", 12, 2, -1, 1, 94.36801),
])
pocket1 = body.newObject("PartDesign::Pocket", "Pocket")
pocket1.Profile = sketch2
pocket1.Type = "ThroughAll"
pocket1.Reversed = True

# Sketch on XZ plane
sketch3 = body.newObject("Sketcher::SketchObject", "Sketch002")
sketch3.AttachmentSupport = (doc.getObject("XZ_Plane"), [""])
sketch3.MapMode = "FlatFace"
sketch3.AttachmentOffset = App.Placement(App.Vector(0, 0, -6.35), App.Rotation())
sketch3.addGeometry([
    Part.Circle(App.Vector(27.1, 40.1, 0), App.Vector(0, 0, 1), 1.2),  # 0
    Part.Circle(App.Vector(8.3, 40.1, 0), App.Vector(0, 0, 1), 1.2),  # 1
    Part.Circle(App.Vector(-8.3, 40.1, 0), App.Vector(0, 0, 1), 1.2),  # 2
    Part.Circle(App.Vector(-27.1, 40.1, 0), App.Vector(0, 0, 1), 1.2),  # 3
    Part.Circle(App.Vector(27.1, -15.8, 0), App.Vector(0, 0, 1), 1.2),  # 4
    Part.Circle(App.Vector(-8.3, -15.8, 0), App.Vector(0, 0, 1), 1.2),  # 5
    Part.Circle(App.Vector(-27.1, -15.8, 0), App.Vector(0, 0, 1), 1.2),  # 6
    Part.Circle(App.Vector(-24.5, -24.6, 0), App.Vector(0, 0, 1), 1.4),  # 7
    Part.Circle(App.Vector(24.5, -24.6, 0), App.Vector(0, 0, 1), 1.4),  # 8
    Part.Circle(App.Vector(24.5, -82.6, 0), App.Vector(0, 0, 1), 1.4),  # 9
    Part.Circle(App.Vector(-24.5, -82.6, 0), App.Vector(0, 0, 1), 1.4),  # 10
    Part.Circle(App.Vector(8.3, -15.8, 0), App.Vector(0, 0, 1), 1.2),  # 11
], False)
sketch3.addConstraint([
    Sketcher.Constraint("Equal", 0, 1),
    Sketcher.Constraint("Equal", 1, 2),
    Sketcher.Constraint("Equal", 2, 3),
    Sketcher.Constraint("Equal", 3, 4),
    Sketcher.Constraint("Equal", 4, 5),
    Sketcher.Constraint("Equal", 5, 6),
    Sketcher.Constraint("Equal", 7, 8),
    Sketcher.Constraint("Equal", 8, 9),
    Sketcher.Constraint("Equal", 9, 10),
    Sketcher.Constraint("Equal", 6, 11),
    Sketcher.Constraint("Symmetric", 1, 3, 2, 3, -2),
    Sketcher.Constraint("Symmetric", 0, 3, 3, 3, -2),
    Sketcher.Constraint("Symmetric", 4, 3, 6, 3, -2),
    Sketcher.Constraint("Symmetric", 7, 3, 8, 3, -2),
    Sketcher.Constraint("Symmetric", 9, 3, 10, 3, -2),
    Sketcher.Constraint("Symmetric", 5, 3, 11, 3, -2),
    Sketcher.Constraint("Horizontal", 0, 3, 1, 3),
    Sketcher.Constraint("Horizontal", 4, 3, 5, 3),
    Sketcher.Constraint("Vertical", 0, 3, 4, 3),
    Sketcher.Constraint("Vertical", 2, 3, 5, 3),
    Sketcher.Constraint("Vertical", 8, 3, 9, 3),
    Sketcher.Constraint("Diameter", 0, 2.5),
    Sketcher.Constraint("Diameter", 7, 2.7),
    Sketcher.Constraint("DistanceX", 7, 3, 8, 3, 49.0),
    Sketcher.Constraint("DistanceY", 9, 3, 8, 3, 58.0),
    Sketcher.Constraint("DistanceX", -1, 1, 0, 3, 27.1),
    Sketcher.Constraint("DistanceX", -1, 1, 1, 3, 8.3),
    Sketcher.Constraint("DistanceY", 4, 3, 0, 3, 55.9),
    Sketcher.Constraint("DistanceY", 7, 3, 6, 3, 8.8),
    Sketcher.Constraint("DistanceY", -1, 1, 0, 3, 40.058854),
])
pocket2 = body.newObject("PartDesign::Pocket", "Pocket001")
pocket2.Profile = sketch3
pocket2.Length = 10
pocket2.Reversed = True

# Sketch on XZ plane
sketch4 = body.newObject("Sketcher::SketchObject", "Sketch003")
sketch4.AttachmentSupport = (doc.getObject("XZ_Plane"), [""])
sketch4.MapMode = "FlatFace"
sketch4.addGeometry([
    Part.Circle(App.Vector(-7.6, 44.1, 0), App.Vector(0, 0, 1), 1.2),  # 0
    Part.Circle(App.Vector(7.6, 44.1, 0), App.Vector(0, 0, 1), 1.2),  # 1
    Part.Circle(App.Vector(7.6, 22.5, 0), App.Vector(0, 0, 1), 1.2),  # 2
    Part.Circle(App.Vector(-7.6, 22.5, 0), App.Vector(0, 0, 1), 1.2),  # 3
    Part.Circle(App.Vector(7.6, -22.5, 0), App.Vector(0, 0, 1), 1.2),  # 4
    Part.Circle(App.Vector(7.6, -44.1, 0), App.Vector(0, 0, 1), 1.2),  # 5
    Part.Circle(App.Vector(-7.6, -22.5, 0), App.Vector(0, 0, 1), 1.2),  # 6
    Part.Circle(App.Vector(-7.6, -44.1, 0), App.Vector(0, 0, 1), 1.2),  # 7
], False)
sketch4.addConstraint([
    Sketcher.Constraint("Equal", 0, 1),
    Sketcher.Constraint("Equal", 1, 2),
    Sketcher.Constraint("Equal", 2, 3),
    Sketcher.Constraint("Equal", 3, 4),
    Sketcher.Constraint("Equal", 4, 5),
    Sketcher.Constraint("Equal", 5, 6),
    Sketcher.Constraint("Equal", 6, 7),
    Sketcher.Constraint("Symmetric", 3, 3, 4, 3, -1, 1),
    Sketcher.Constraint("Symmetric", 0, 3, 5, 3, -1, 1),
    Sketcher.Constraint("Symmetric", 2, 3, 6, 3, -1, 1),
    Sketcher.Constraint("Symmetric", 1, 3, 7, 3, -1, 1),
    Sketcher.Constraint("Symmetric", 0, 3, 1, 3, -2),
    Sketcher.Constraint("Symmetric", 2, 3, 3, 3, -2),
    Sketcher.Constraint("Vertical", 1, 3, 2, 3),
    Sketcher.Constraint("Diameter", 0, 2.5),
    Sketcher.Constraint("DistanceX", 0, 3, -1, 1, 7.62),
    Sketcher.Constraint("DistanceY", -1, 1, 0, 3, 44.13),
    Sketcher.Constraint("DistanceY", -1, 1, 2, 3, 22.54),
])
pocket3 = body.newObject("PartDesign::Pocket", "Pocket002")
pocket3.Profile = sketch4
pocket3.Length = 10

# Sketch on XZ plane
sketch5 = body.newObject("Sketcher::SketchObject", "Sketch004")
sketch5.AttachmentSupport = (doc.getObject("XZ_Plane"), [""])
sketch5.MapMode = "FlatFace"
sketch5.AttachmentOffset = App.Placement(App.Vector(0, 0, -6.35), App.Rotation())
sketch5.addGeometry([
    Part.Circle(App.Vector(15, 59.4, 0), App.Vector(0, 0, 1), 1.6),
    Part.Circle(App.Vector(-15, 59.4, 0), App.Vector(0, 0, 1), 1.6),
], False)
sketch5.addConstraint([
    Sketcher.Constraint("Equal", 0, 1),
    Sketcher.Constraint("Symmetric", 0, 3, 1, 3, -2),
    Sketcher.Constraint("Diameter", 0, 3.2),
    Sketcher.Constraint("DistanceX", -1, 1, 0, 3, 15.0),
    Sketcher.Constraint("DistanceY", -1, 1, 0, 3, 59.358854),
])
pocket4 = body.newObject("PartDesign::Pocket", "Pocket003")
pocket4.Profile = sketch5
pocket4.Length = 10
pocket4.Reversed = True

doc.recompute()
